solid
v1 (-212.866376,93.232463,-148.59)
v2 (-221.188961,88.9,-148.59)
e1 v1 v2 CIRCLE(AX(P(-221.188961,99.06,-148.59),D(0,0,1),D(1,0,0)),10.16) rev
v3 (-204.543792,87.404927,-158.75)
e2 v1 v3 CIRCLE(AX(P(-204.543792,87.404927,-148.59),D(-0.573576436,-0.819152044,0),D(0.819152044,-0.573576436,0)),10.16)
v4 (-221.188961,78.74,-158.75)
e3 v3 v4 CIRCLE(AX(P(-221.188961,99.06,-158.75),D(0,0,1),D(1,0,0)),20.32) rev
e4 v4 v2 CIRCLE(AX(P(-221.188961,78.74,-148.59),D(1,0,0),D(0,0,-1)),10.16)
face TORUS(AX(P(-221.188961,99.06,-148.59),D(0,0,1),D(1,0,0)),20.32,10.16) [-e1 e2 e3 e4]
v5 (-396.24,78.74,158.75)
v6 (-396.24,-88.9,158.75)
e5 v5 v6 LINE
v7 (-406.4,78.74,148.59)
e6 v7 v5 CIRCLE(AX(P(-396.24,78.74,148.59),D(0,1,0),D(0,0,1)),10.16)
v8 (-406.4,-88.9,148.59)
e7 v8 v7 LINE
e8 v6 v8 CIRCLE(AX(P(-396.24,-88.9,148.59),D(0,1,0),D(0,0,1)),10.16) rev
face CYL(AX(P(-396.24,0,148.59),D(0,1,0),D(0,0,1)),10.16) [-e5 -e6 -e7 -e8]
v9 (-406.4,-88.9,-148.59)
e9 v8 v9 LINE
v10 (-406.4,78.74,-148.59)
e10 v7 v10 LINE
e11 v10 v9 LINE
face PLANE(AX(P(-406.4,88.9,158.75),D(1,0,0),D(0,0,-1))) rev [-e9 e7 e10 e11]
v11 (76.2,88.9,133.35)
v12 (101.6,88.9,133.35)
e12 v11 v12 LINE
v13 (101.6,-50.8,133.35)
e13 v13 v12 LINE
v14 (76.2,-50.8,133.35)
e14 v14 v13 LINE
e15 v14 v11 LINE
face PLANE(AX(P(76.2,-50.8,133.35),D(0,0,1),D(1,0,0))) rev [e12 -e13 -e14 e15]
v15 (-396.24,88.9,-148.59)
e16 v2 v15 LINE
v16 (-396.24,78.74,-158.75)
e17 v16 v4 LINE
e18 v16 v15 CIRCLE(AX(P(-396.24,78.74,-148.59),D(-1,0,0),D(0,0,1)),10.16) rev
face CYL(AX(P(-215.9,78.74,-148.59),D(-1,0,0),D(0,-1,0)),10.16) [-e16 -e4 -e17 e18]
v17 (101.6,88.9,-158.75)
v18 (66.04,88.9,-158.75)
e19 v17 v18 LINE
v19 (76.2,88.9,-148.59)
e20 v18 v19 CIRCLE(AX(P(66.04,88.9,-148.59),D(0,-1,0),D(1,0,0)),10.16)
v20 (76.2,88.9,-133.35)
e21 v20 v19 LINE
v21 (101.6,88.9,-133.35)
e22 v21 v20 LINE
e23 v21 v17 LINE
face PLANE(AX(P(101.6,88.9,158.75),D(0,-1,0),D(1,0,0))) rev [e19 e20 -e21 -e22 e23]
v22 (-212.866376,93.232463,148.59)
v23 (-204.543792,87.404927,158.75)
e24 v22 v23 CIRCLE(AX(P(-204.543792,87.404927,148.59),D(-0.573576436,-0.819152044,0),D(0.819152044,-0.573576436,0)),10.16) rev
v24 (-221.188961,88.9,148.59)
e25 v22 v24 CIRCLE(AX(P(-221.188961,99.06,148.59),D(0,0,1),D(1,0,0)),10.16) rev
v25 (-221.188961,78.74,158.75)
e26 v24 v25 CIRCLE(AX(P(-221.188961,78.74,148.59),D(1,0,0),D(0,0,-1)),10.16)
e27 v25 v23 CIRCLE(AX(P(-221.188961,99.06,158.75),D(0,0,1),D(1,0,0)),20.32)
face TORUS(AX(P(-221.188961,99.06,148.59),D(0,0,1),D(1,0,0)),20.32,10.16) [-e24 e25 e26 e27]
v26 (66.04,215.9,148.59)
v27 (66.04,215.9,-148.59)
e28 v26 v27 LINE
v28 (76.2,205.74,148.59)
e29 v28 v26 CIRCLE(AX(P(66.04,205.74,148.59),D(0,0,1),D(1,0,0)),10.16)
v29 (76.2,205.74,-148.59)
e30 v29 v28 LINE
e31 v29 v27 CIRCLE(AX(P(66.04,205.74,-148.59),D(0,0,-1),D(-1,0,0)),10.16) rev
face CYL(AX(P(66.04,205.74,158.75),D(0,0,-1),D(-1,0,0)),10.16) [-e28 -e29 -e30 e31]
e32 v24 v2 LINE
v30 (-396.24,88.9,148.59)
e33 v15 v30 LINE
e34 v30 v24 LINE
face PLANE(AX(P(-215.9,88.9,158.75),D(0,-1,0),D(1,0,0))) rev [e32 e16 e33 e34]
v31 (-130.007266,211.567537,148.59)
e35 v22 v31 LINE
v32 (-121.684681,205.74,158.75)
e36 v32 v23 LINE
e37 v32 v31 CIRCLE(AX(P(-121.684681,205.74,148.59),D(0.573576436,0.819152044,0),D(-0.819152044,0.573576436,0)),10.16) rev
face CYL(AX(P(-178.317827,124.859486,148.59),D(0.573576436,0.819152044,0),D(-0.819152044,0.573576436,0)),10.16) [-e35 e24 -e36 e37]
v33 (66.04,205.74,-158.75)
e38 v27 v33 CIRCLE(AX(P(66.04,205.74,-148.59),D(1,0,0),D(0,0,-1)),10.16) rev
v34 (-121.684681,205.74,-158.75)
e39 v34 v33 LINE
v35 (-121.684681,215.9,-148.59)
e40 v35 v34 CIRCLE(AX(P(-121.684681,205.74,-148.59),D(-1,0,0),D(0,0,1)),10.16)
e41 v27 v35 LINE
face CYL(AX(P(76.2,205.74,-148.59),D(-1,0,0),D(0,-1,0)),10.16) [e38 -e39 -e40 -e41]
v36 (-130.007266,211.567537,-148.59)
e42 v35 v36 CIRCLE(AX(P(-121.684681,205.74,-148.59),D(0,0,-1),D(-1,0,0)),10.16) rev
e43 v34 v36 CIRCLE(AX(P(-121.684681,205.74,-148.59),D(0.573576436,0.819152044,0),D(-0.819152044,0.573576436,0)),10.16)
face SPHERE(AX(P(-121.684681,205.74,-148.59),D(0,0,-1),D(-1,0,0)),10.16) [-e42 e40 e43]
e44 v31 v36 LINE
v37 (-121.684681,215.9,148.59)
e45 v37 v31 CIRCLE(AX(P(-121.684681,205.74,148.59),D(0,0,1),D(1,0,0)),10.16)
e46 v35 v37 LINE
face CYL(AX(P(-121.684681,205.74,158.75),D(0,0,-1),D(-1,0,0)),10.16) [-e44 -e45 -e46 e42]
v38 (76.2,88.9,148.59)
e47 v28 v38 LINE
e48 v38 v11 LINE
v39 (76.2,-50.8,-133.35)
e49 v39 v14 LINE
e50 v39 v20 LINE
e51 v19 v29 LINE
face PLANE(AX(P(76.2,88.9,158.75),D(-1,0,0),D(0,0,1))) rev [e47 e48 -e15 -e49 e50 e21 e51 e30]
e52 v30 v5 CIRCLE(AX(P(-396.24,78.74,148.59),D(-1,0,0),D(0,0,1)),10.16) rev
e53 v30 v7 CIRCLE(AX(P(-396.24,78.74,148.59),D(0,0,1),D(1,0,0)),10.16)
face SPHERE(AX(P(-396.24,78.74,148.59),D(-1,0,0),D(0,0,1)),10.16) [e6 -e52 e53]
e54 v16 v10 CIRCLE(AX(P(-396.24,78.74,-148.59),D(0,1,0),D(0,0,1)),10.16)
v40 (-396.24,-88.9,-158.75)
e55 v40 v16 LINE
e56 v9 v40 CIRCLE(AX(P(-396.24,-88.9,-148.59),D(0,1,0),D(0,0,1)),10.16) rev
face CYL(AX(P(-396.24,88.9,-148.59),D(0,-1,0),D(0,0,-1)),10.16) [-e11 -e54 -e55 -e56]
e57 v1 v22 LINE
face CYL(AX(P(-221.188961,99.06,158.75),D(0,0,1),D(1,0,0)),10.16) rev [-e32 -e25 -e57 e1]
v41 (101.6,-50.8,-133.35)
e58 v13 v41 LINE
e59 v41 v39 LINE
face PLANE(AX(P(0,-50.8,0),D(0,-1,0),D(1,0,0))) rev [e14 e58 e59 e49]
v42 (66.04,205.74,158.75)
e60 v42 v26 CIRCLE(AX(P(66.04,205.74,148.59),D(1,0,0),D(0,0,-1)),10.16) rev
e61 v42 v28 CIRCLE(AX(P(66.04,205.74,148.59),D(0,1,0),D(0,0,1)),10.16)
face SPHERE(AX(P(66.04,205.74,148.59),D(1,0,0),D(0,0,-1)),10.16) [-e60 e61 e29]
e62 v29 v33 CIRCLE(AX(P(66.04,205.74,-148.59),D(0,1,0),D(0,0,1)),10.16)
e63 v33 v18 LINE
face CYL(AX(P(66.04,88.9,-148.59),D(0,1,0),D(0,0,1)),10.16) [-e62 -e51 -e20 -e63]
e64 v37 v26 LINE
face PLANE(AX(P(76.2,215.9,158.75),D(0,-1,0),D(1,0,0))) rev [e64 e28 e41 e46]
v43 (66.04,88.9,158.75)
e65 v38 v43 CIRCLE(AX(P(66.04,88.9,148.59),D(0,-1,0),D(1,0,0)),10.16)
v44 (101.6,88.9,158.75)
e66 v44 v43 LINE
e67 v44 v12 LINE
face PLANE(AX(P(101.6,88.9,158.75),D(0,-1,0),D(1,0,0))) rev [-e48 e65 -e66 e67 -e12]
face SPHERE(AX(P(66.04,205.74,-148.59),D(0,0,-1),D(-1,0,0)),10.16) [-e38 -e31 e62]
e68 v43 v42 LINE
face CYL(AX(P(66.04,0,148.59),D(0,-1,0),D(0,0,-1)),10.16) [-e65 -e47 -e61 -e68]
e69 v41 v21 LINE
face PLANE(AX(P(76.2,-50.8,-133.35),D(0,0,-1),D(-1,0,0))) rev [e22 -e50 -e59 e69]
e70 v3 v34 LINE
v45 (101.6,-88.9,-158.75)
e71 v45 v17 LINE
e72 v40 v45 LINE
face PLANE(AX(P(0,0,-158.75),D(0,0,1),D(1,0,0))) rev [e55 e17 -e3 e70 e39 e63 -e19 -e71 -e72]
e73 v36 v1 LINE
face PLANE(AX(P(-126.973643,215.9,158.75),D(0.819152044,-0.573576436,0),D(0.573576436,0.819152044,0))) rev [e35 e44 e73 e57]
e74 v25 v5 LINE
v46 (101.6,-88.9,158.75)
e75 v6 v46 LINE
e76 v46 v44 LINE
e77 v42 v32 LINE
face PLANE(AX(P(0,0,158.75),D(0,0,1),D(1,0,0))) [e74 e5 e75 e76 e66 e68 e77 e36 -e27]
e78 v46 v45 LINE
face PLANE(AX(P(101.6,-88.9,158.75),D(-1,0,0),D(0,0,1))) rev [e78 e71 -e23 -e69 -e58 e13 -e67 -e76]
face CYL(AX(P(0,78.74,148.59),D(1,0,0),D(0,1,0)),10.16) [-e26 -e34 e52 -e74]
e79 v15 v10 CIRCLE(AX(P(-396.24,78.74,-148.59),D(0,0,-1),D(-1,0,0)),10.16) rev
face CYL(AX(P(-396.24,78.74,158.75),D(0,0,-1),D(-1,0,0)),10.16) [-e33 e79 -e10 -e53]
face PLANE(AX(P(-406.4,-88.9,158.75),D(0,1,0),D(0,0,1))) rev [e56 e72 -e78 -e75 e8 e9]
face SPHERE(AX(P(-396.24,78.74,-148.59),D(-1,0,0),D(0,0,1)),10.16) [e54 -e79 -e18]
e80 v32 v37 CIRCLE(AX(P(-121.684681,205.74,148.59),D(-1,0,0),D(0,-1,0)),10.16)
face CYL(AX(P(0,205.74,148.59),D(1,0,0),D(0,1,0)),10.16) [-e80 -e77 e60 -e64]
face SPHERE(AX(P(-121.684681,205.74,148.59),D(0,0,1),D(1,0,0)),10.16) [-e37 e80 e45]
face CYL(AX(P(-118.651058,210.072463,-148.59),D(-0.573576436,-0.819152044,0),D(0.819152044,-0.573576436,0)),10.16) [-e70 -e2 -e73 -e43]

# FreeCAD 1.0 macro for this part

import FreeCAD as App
import Part
import Sketcher
from FreeCAD import Vector
Q = App.Units.Quantity


def edges_at(feature, points):
    """Names of the edges that pass closest to the given points."""
    edges = feature.Shape.Edges
    near = lambda p: min(range(len(edges)), key=lambda i: edges[i].distToShape(Part.Vertex(*p))[0])
    return sorted({f"Edge{near(p) + 1}" for p in points})

doc = App.newDocument("Part")
params = doc.addObject("Spreadsheet::Sheet", "Params")
for row, (alias, value) in enumerate([
    ("sketch1_width", "20 in"),
    ("sketch1_width2", "1 in"),
    ("sketch1_height", "7 in"),
    ("sketch1_height2", "5 in"),
    ("sketch1_width3", "7.5 in"),
    ("pad1_length", "12.5 in"),
    ("sketch2_width", "1 in"),
    ("sketch2_height", "10.5 in"),
    ("pocket1_length", "5.5 in"),
    ("fillet_radius", "0.4 in"),
], start=1):
    params.set(f"A{row}", alias)
    params.set(f"B{row}", "=" + value)
    params.setAlias(f"B{row}", alias)

body = doc.addObject("PartDesign::Body", "Body")

# Sketch on XY plane
sketch1 = body.newObject("Sketcher::SketchObject", "Sketch")
sketch1.AttachmentSupport = (doc.getObject("XY_Plane"), [""])
sketch1.MapMode = "FlatFace"
sketch1.addGeometry([
    Part.LineSegment(Vector(-406, 89, 0), Vector(-406, -89, 0)),  # 0
    Part.LineSegment(Vector(-406, -89, 0), Vector(102, -89, 0)),  # 1
    Part.LineSegment(Vector(102, -89, 0), Vector(102, 89, 0)),  # 2
    Part.LineSegment(Vector(102, 89, 0), Vector(76, 89, 0)),  # 3
    Part.LineSegment(Vector(76, 89, 0), Vector(76, 216, 0)),  # 4
    Part.LineSegment(Vector(76, 216, 0), Vector(-127, 216, 0)),  # 5
    Part.LineSegment(Vector(-127, 216, 0), Vector(-216, 89, 0)),  # 6
    Part.LineSegment(Vector(-216, 89, 0), Vector(-406, 89, 0)),  # 7
], False)
sketch1.addConstraint([
    Sketcher.Constraint("Coincident", 0, 2, 1, 1),
    Sketcher.Constraint("Coincident", 1, 2, 2, 1),
    Sketcher.Constraint("Coincident", 2, 2, 3, 1),
    Sketcher.Constraint("Coincident", 3, 2, 4, 1),
    Sketcher.Constraint("Coincident", 4, 2, 5, 1),
    Sketcher.Constraint("Coincident", 5, 2, 6, 1),
    Sketcher.Constraint("Coincident", 6, 2, 7, 1),
    Sketcher.Constraint("Coincident", 7, 2, 0, 1),
    Sketcher.Constraint("Vertical", 0),
    Sketcher.Constraint("Horizontal", 1),
    Sketcher.Constraint("Vertical", 2),
    Sketcher.Constraint("Horizontal", 3),
    Sketcher.Constraint("Vertical", 4),
    Sketcher.Constraint("Horizontal", 5),
    Sketcher.Constraint("Horizontal", 7),
    Sketcher.Constraint("Horizontal", 3, 2, 6, 2),
    Sketcher.Constraint("DistanceX", 1, 1, 1, 2, Q("20 in")),
    Sketcher.Constraint("DistanceX", 3, 2, 3, 1, Q("1 in")),
    Sketcher.Constraint("DistanceY", 0, 2, 0, 1, Q("7 in")),
    Sketcher.Constraint("DistanceY", 4, 1, 4, 2, Q("5 in")),
    Sketcher.Constraint("DistanceX", 7, 2, 7, 1, Q("7.5 in")),
    Sketcher.Constraint("DistanceX", 0, 2, -1, 1, Q("16 in")),
    Sketcher.Constraint("Angle", 6, Q("-125 deg")),
    Sketcher.Constraint("DistanceY", 0, 2, -1, 1, Q("3.5 in")),
])
sketch1.setExpression("Constraints[16]", "Params.sketch1_width")
sketch1.setExpression("Constraints[17]", "Params.sketch1_width2")
sketch1.setExpression("Constraints[18]", "Params.sketch1_height")
sketch1.setExpression("Constraints[19]", "Params.sketch1_height2")
sketch1.setExpression("Constraints[20]", "Params.sketch1_width3")
pad1 = body.newObject("PartDesign::Pad", "Pad")
pad1.Profile = sketch1
pad1.setExpression("Length", "Params.pad1_length")
pad1.Midplane = True

# Sketch on XZ plane
sketch2 = body.newObject("Sketcher::SketchObject", "Sketch001")
sketch2.AttachmentSupport = (doc.getObject("XZ_Plane"), [""])
sketch2.MapMode = "FlatFace"
sketch2.AttachmentOffset = App.Placement(Vector(0, 0, -3.5 * 25.4), App.Rotation())
sketch2.addGeometry([
    Part.LineSegment(Vector(76, -133, 0), Vector(76, 133, 0)),
    Part.LineSegment(Vector(76, 133, 0), Vector(102, 133, 0)),
    Part.LineSegment(Vector(102, 133, 0), Vector(102, -133, 0)),
    Part.LineSegment(Vector(102, -133, 0), Vector(76, -133, 0)),
], False)
sketch2.addConstraint([
    Sketcher.Constraint("Coincident", 0, 2, 1, 1),
    Sketcher.Constraint("Coincident", 1, 2, 2, 1),
    Sketcher.Constraint("Coincident", 2, 2, 3, 1),
    Sketcher.Constraint("Coincident", 3, 2, 0, 1),
    Sketcher.Constraint("Vertical", 0),
    Sketcher.Constraint("Horizontal", 1),
    Sketcher.Constraint("Vertical", 2),
    Sketcher.Constraint("Horizontal", 3),
    Sketcher.Constraint("DistanceX", 1, 1, 1, 2, Q("1 in")),
    Sketcher.Constraint("DistanceY", 0, 1, 0, 2, Q("10.5 in")),
    Sketcher.Constraint("DistanceX", -1, 1, 0, 2, Q("3 in")),
    Sketcher.Constraint("DistanceY", -1, 1, 0, 2, Q("5.25 in")),
])
sketch2.setExpression("Constraints[8]", "Params.sketch2_width")
sketch2.setExpression("Constraints[9]", "Params.sketch2_height")
pocket1 = body.newObject("PartDesign::Pocket", "Pocket")
pocket1.Profile = sketch2
pocket1.setExpression("Length", "Params.pocket1_length")
pocket1.Reversed = True
doc.recompute()

fillet = body.newObject("PartDesign::Fillet", "Fillet")
fillet.Base = (pocket1, edges_at(pocket1, [
    (-171.437, 152.4, 158.75),
    (-171.437, 152.4, -158.75),
    (-215.9, 88.9, 0),
    (-311.15, 88.9, 158.75),
    (-406.4, 88.9, 0),
    (-311.15, 88.9, -158.75),
    (76.2, 152.4, -158.75),
    (76.2, 152.4, 158.75),
    (-25.387, 215.9, -158.75),
    (-25.387, 215.9, 158.75),
    (76.2, 215.9, 0),
    (-126.974, 215.9, 0),
    (-406.4, 0, -158.75),
    (-406.4, 0, 158.75),
]))
fillet.setExpression("Radius", "Params.fillet_radius")

doc.recompute()
